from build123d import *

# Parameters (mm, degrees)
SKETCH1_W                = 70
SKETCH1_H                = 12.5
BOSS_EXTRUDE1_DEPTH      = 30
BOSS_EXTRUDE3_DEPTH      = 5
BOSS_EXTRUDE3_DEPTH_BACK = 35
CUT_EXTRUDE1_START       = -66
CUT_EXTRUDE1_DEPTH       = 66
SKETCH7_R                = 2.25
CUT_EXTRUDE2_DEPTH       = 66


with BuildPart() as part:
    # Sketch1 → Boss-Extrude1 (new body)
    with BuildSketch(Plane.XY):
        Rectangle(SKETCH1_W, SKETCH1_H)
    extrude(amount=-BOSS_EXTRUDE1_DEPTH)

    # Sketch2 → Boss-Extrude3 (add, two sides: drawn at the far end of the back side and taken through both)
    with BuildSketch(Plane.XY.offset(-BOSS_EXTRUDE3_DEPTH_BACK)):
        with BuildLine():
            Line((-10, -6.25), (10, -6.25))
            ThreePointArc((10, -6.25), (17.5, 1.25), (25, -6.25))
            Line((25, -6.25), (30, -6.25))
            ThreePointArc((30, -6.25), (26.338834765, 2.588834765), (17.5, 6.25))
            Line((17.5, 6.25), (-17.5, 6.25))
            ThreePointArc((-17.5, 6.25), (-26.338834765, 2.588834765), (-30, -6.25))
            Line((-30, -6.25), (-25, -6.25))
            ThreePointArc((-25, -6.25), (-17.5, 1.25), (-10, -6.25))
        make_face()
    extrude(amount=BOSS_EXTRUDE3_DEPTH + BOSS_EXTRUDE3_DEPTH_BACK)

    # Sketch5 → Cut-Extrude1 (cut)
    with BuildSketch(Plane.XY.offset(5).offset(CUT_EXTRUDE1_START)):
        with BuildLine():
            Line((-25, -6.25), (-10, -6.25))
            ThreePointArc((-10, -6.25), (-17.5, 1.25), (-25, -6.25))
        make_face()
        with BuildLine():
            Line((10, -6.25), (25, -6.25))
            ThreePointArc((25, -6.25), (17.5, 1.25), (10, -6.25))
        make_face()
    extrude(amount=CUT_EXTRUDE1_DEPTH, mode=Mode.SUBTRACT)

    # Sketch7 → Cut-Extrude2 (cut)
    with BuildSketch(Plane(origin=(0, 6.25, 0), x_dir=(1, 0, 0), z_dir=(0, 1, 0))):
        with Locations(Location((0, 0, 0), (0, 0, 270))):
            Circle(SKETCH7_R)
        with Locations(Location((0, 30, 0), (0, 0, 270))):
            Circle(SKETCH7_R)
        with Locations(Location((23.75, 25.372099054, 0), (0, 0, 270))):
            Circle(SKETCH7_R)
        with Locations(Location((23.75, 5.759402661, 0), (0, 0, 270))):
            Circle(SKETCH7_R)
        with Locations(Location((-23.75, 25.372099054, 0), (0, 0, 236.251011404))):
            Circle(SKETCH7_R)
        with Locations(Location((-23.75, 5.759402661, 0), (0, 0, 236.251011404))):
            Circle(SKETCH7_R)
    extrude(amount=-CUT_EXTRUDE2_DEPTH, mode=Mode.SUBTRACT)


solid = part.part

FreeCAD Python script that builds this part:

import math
import FreeCAD as App
import Part
import Sketcher
from FreeCAD import Vector


def add_polygon(sketch, points):
    """Adds a closed chain of lines whose ends are joined by coincident constraints."""
    first, n = sketch.GeometryCount, len(points)
    for a, b in zip(points, points[1:] + points[:1]):
        sketch.addGeometry(Part.LineSegment(App.Vector(*a, 0), App.Vector(*b, 0)), False)
    for i in range(n):
        sketch.addConstraint(Sketcher.Constraint("Coincident", first + i, 2, first + (i + 1) % n, 1))

doc = App.newDocument("Part")
body = doc.addObject("PartDesign::Body", "Body")

sketch1 = body.newObject("Sketcher::SketchObject", "Sketch")
sketch1.AttachmentSupport = (doc.getObject("XY_Plane"), [""])
sketch1.MapMode = "FlatFace"
add_polygon(sketch1, [(-35, 6), (-35, -6), (35, -6), (35, 6)])
sketch1.addConstraint([
    Sketcher.Constraint("Vertical", 0),
    Sketcher.Constraint("Horizontal", 1),
    Sketcher.Constraint("Vertical", 2),
    Sketcher.Constraint("Horizontal", 3),
    Sketcher.Constraint("Symmetric", 0, 2, 2, 2, -1, 1),
    Sketcher.Constraint("DistanceX", 1, 1, 1, 2, 70.0),
    Sketcher.Constraint("DistanceY", 0, 2, 0, 1, 12.5),
])
pad1 = body.newObject("PartDesign::Pad", "Pad")
pad1.Profile = sketch1
pad1.Length = 30
pad1.Reversed = True

sketch2 = body.newObject("Sketcher::SketchObject", "Sketch001")
sketch2.AttachmentSupport = (doc.getObject("XY_Plane"), [""])
sketch2.MapMode = "FlatFace"
sketch2.addGeometry([
    Part.LineSegment(Vector(-10, -6, 0), Vector(10, -6, 0)),
    Part.ArcOfCircle(Part.Circle(Vector(18, -6, 0), Vector(0, 0, 1), 8), math.radians(0), math.radians(180)),
    Part.LineSegment(Vector(25, -6, 0), Vector(30, -6, 0)),
    Part.ArcOfCircle(Part.Circle(Vector(18, -6, 0), Vector(0, 0, 1), 12), math.radians(0), math.radians(90)),
    Part.LineSegment(Vector(18, 6, 0), Vector(-18, 6, 0)),
    Part.ArcOfCircle(Part.Circle(Vector(-18, -6, 0), Vector(0, 0, 1), 12), math.radians(90), math.radians(180)),
    Part.LineSegment(Vector(-30, -6, 0), Vector(-25, -6, 0)),
    Part.ArcOfCircle(Part.Circle(Vector(-18, -6, 0), Vector(0, 0, 1), 8), math.radians(0), math.radians(180)),
], False)
sketch2.addConstraint([
    Sketcher.Constraint("Coincident", 0, 2, 1, 2),
    Sketcher.Constraint("Coincident", 1, 1, 2, 1),
    Sketcher.Constraint("Coincident", 2, 2, 3, 1),
    Sketcher.Constraint("Tangent", 3, 2, 4, 1),
    Sketcher.Constraint("Tangent", 4, 2, 5, 1),
    Sketcher.Constraint("Coincident", 5, 2, 6, 1),
    Sketcher.Constraint("Coincident", 6, 2, 7, 2),
    Sketcher.Constraint("Coincident", 7, 1, 0, 1),
    Sketcher.Constraint("Horizontal", 0),
    Sketcher.Constraint("Horizontal", 2),
    Sketcher.Constraint("Horizontal", 4),
    Sketcher.Constraint("Horizontal", 6),
    Sketcher.Constraint("Coincident", 3, 3, 1, 3),
    Sketcher.Constraint("Coincident", 7, 3, 5, 3),
    Sketcher.Constraint("Equal", 3, 5),
    Sketcher.Constraint("Equal", 1, 7),
    Sketcher.Constraint("Symmetric", 2, 2, 5, 2, -2),
    Sketcher.Constraint("Horizontal", 7, 3, 0, 2),
    Sketcher.Constraint("Horizontal", 0, 2, 1, 1),
    Sketcher.Constraint("Radius", 1, 7.5),
    Sketcher.Constraint("Radius", 3, 12.5),
    Sketcher.Constraint("DistanceX", 0, 1, 0, 2, 20.0),
    Sketcher.Constraint("DistanceY", 1, 3, -1, 1, 6.25),
])
pad2 = body.newObject("PartDesign::Pad", "Pad001")
pad2.Profile = sketch2
pad2.Type = "TwoLengths"
pad2.Length = 5
pad2.Length2 = 35

sketch3 = body.newObject("Sketcher::SketchObject", "Sketch002")
sketch3.AttachmentSupport = (doc.getObject("XY_Plane"), [""])
sketch3.MapMode = "FlatFace"
sketch3.AttachmentOffset = App.Placement(Vector(0, 0, -61), App.Rotation())
sketch3.addGeometry([
    Part.LineSegment(Vector(-25, -6, 0), Vector(-10, -6, 0)),
    Part.ArcOfCircle(Part.Circle(Vector(-18, -6, 0), Vector(0, 0, 1), 8), math.radians(0), math.radians(180)),
    Part.LineSegment(Vector(10, -6, 0), Vector(25, -6, 0)),
    Part.ArcOfCircle(Part.Circle(Vector(18, -6, 0), Vector(0, 0, 1), 8), math.radians(0), math.radians(180)),
], False)
sketch3.addConstraint([
    Sketcher.Constraint("Coincident", 0, 1, 1, 2),
    Sketcher.Constraint("Coincident", 1, 1, 0, 2),
    Sketcher.Constraint("Coincident", 2, 1, 3, 2),
    Sketcher.Constraint("Coincident", 3, 1, 2, 2),
    Sketcher.Constraint("Horizontal", 0),
    Sketcher.Constraint("Horizontal", 2),
    Sketcher.Constraint("Equal", 1, 3),
    Sketcher.Constraint("Symmetric", 1, 3, 3, 3, -2),
    Sketcher.Constraint("Horizontal", 3, 3, 0, 1),
    Sketcher.Constraint("Horizontal", 1, 1, 2, 1),
    Sketcher.Constraint("Radius", 1, 7.5),
    Sketcher.Constraint("DistanceX", 0, 1, -1, 1, 25.0),
    Sketcher.Constraint("DistanceY", 1, 3, -1, 1, 6.25),
])
pocket1 = body.newObject("PartDesign::Pocket", "Pocket")
pocket1.Profile = sketch3
pocket1.Length = 66
pocket1.Reversed = True

sketch4 = body.newObject("Sketcher::SketchObject", "Sketch003")
sketch4.AttachmentSupport = (doc.getObject("XZ_Plane"), [""])
sketch4.MapMode = "FlatFace"
sketch4.AttachmentOffset = App.Placement(Vector(0, 0, -6.25), App.Rotation())
sketch4.addGeometry([
    Part.Circle(Vector(0, 0, 0), Vector(0, 0, 1), 2.2),
    Part.Circle(Vector(0, -30, 0), Vector(0, 0, 1), 2.2),
    Part.Circle(Vector(23.8, -25.4, 0), Vector(0, 0, 1), 2.2),
    Part.Circle(Vector(23.8, -5.8, 0), Vector(0, 0, 1), 2.2),
    Part.Circle(Vector(-23.8, -25.4, 0), Vector(0, 0, 1), 2.2),
    Part.Circle(Vector(-23.8, -5.8, 0), Vector(0, 0, 1), 2.2),
], False)
sketch4.addConstraint([
    Sketcher.Constraint("Coincident", 0, 3, -1, 1),
    Sketcher.Constraint("Equal", 0, 1),
    Sketcher.Constraint("Equal", 1, 2),
    Sketcher.Constraint("Equal", 2, 3),
    Sketcher.Constraint("Equal", 3, 4),
    Sketcher.Constraint("Equal", 4, 5),
    Sketcher.Constraint("Symmetric", 2, 3, 4, 3, -2),
    Sketcher.Constraint("Symmetric", 3, 3, 5, 3, -2),
    Sketcher.Constraint("PointOnObject", 1, 3, -2),
    Sketcher.Constraint("Vertical", 2, 3, 3, 3),
    Sketcher.Constraint("Diameter", 0, 4.5),
    Sketcher.Constraint("DistanceY", 1, 3, -1, 1, 30.0),
    Sketcher.Constraint("DistanceX", 4, 3, 2, 3, 47.5),
    Sketcher.Constraint("DistanceY", 2, 3, -1, 1, 25.372099),
    Sketcher.Constraint("DistanceY", 3, 3, -1, 1, 5.759403),
])
pocket2 = body.newObject("PartDesign::Pocket", "Pocket001")
pocket2.Profile = sketch4
pocket2.Length = 66
pocket2.Reversed = True

doc.recompute()
